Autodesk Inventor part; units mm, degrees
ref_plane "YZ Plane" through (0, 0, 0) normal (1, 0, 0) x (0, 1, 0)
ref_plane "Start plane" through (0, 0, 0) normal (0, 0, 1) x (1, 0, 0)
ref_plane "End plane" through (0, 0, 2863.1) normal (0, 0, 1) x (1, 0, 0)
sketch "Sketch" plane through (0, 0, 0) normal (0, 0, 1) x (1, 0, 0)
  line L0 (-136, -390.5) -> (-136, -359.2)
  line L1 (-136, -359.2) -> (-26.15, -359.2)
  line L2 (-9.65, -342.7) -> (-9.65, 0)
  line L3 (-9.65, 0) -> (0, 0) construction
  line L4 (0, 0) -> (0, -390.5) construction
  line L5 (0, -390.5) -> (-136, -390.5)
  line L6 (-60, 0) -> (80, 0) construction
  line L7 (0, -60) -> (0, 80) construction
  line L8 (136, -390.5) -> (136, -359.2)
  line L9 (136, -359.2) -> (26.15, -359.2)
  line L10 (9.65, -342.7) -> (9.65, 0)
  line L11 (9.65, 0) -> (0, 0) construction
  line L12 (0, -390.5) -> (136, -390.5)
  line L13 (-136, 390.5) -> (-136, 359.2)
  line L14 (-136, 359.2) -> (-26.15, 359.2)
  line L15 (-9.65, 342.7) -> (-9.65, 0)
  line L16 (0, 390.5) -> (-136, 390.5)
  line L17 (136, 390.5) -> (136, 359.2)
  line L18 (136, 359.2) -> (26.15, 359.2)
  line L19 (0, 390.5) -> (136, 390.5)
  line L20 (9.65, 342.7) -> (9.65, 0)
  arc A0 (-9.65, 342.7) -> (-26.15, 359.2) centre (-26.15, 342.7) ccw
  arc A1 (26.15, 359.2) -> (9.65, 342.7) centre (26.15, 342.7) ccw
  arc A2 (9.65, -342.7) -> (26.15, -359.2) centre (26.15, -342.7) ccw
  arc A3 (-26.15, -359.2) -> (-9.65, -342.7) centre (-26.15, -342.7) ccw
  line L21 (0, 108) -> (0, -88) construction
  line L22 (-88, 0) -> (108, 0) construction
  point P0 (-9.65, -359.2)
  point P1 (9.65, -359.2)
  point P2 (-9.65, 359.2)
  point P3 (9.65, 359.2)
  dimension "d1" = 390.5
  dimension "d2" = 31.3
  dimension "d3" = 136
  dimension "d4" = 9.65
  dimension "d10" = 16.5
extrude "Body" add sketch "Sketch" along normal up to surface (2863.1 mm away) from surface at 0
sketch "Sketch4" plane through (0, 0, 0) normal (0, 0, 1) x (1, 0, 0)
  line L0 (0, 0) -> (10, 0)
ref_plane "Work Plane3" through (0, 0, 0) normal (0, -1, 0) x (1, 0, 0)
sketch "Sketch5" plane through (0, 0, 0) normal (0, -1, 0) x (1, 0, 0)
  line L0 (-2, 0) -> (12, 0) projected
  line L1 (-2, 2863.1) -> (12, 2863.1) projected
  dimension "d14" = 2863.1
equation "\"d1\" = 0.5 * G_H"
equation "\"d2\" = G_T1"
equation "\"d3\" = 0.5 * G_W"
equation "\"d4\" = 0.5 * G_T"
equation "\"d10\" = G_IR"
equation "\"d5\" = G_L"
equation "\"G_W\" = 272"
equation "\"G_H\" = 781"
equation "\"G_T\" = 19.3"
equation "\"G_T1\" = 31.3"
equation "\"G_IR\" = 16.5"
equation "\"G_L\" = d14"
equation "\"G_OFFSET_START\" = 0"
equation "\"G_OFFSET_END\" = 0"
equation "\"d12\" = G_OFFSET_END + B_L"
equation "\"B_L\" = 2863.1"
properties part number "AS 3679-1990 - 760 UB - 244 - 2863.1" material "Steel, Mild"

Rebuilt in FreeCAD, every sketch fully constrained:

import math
import FreeCAD as App
import Part
import Sketcher
from FreeCAD import Vector
Q = App.Units.Quantity

doc = App.newDocument("Part")
params = doc.addObject("Spreadsheet::Sheet", "Params")
for row, (alias, value) in enumerate([
    ("sketch1_radius", "16.5 mm"),
    ("sketch1_height", "31.3 mm"),
    ("pad1_length", "2863.1 mm"),
], start=1):
    params.set(f"A{row}", alias)
    params.set(f"B{row}", "=" + value)
    params.setAlias(f"B{row}", alias)

body = doc.addObject("PartDesign::Body", "Body")

sketch1 = doc.addObject("Sketcher::SketchObject", "Sketch")
body.addObject(sketch1)
sketch1.AttachmentSupport = (doc.XY_Plane, [""])
sketch1.MapMode = "FlatFace"
sketch1.addGeometry(Part.LineSegment(Vector(-136, -359, 0), Vector(-136, -390, 0)), False)
sketch1.addGeometry(Part.LineSegment(Vector(-136, -390, 0), Vector(136, -390, 0)), False)
sketch1.addGeometry(Part.LineSegment(Vector(136, -390, 0), Vector(136, -359, 0)), False)
sketch1.addGeometry(Part.LineSegment(Vector(136, -359, 0), Vector(26, -359, 0)), False)
sketch1.addGeometry(Part.ArcOfCircle(Part.Circle(Vector(26, -343, 0), Vector(0, 0, 1), 16), math.radians(180), math.radians(270)), False)
sketch1.addGeometry(Part.LineSegment(Vector(10, -343, 0), Vector(10, 343, 0)), False)
sketch1.addGeometry(Part.ArcOfCircle(Part.Circle(Vector(26, 343, 0), Vector(0, 0, 1), 16), math.radians(90), math.radians(180)), False)
sketch1.addGeometry(Part.LineSegment(Vector(26, 359, 0), Vector(136, 359, 0)), False)
sketch1.addGeometry(Part.LineSegment(Vector(136, 359, 0), Vector(136, 390, 0)), False)
sketch1.addGeometry(Part.LineSegment(Vector(136, 390, 0), Vector(-136, 390, 0)), False)
sketch1.addGeometry(Part.LineSegment(Vector(-136, 390, 0), Vector(-136, 359, 0)), False)
sketch1.addGeometry(Part.LineSegment(Vector(-136, 359, 0), Vector(-26, 359, 0)), False)
sketch1.addGeometry(Part.ArcOfCircle(Part.Circle(Vector(-26, 343, 0), Vector(0, 0, 1), 16), math.radians(0), math.radians(90)), False)
sketch1.addGeometry(Part.LineSegment(Vector(-10, 343, 0), Vector(-10, -343, 0)), False)
sketch1.addGeometry(Part.ArcOfCircle(Part.Circle(Vector(-26, -343, 0), Vector(0, 0, 1), 16), math.radians(-90), math.radians(0)), False)
sketch1.addGeometry(Part.LineSegment(Vector(-26, -359, 0), Vector(-136, -359, 0)), False)
sketch1.addConstraint(Sketcher.Constraint("Coincident", 0, 2, 1, 1))
sketch1.addConstraint(Sketcher.Constraint("Coincident", 1, 2, 2, 1))
sketch1.addConstraint(Sketcher.Constraint("Coincident", 2, 2, 3, 1))
sketch1.addConstraint(Sketcher.Constraint("Tangent", 3, 2, 4, 2))
sketch1.addConstraint(Sketcher.Constraint("Tangent", 4, 1, 5, 1))
sketch1.addConstraint(Sketcher.Constraint("Tangent", 5, 2, 6, 2))
sketch1.addConstraint(Sketcher.Constraint("Tangent", 6, 1, 7, 1))
sketch1.addConstraint(Sketcher.Constraint("Coincident", 7, 2, 8, 1))
sketch1.addConstraint(Sketcher.Constraint("Coincident", 8, 2, 9, 1))
sketch1.addConstraint(Sketcher.Constraint("Coincident", 9, 2, 10, 1))
sketch1.addConstraint(Sketcher.Constraint("Coincident", 10, 2, 11, 1))
sketch1.addConstraint(Sketcher.Constraint("Tangent", 11, 2, 12, 2))
sketch1.addConstraint(Sketcher.Constraint("Tangent", 12, 1, 13, 1))
sketch1.addConstraint(Sketcher.Constraint("Tangent", 13, 2, 14, 2))
sketch1.addConstraint(Sketcher.Constraint("Tangent", 14, 1, 15, 1))
sketch1.addConstraint(Sketcher.Constraint("Coincident", 15, 2, 0, 1))
sketch1.addConstraint(Sketcher.Constraint("Vertical", 0))
sketch1.addConstraint(Sketcher.Constraint("Horizontal", 1))
sketch1.addConstraint(Sketcher.Constraint("Vertical", 2))
sketch1.addConstraint(Sketcher.Constraint("Horizontal", 3))
sketch1.addConstraint(Sketcher.Constraint("Vertical", 5))
sketch1.addConstraint(Sketcher.Constraint("Horizontal", 7))
sketch1.addConstraint(Sketcher.Constraint("Vertical", 8))
sketch1.addConstraint(Sketcher.Constraint("Horizontal", 9))
sketch1.addConstraint(Sketcher.Constraint("Vertical", 10))
sketch1.addConstraint(Sketcher.Constraint("Horizontal", 11))
sketch1.addConstraint(Sketcher.Constraint("Vertical", 13))
sketch1.addConstraint(Sketcher.Constraint("Horizontal", 15))
sketch1.addConstraint(Sketcher.Constraint("Equal", 4, 6))
sketch1.addConstraint(Sketcher.Constraint("Equal", 6, 12))
sketch1.addConstraint(Sketcher.Constraint("Equal", 12, 14))
sketch1.addConstraint(Sketcher.Constraint("Symmetric", 4, 3, 12, 3, -1, 1))
sketch1.addConstraint(Sketcher.Constraint("Symmetric", 0, 2, 8, 2, -1, 1))
sketch1.addConstraint(Sketcher.Constraint("Symmetric", 7, 2, 10, 2, -2))
sketch1.addConstraint(Sketcher.Constraint("Symmetric", 2, 2, 15, 2, -2))
sketch1.addConstraint(Sketcher.Constraint("Radius", 4, Q("16.5 mm")))
sketch1.addConstraint(Sketcher.Constraint("DistanceY", 0, 2, 0, 1, Q("31.3 mm")))
sketch1.addConstraint(Sketcher.Constraint("DistanceX", 0, 2, -1, 1, Q("136 mm")))
sketch1.addConstraint(Sketcher.Constraint("DistanceY", 0, 2, -1, 1, Q("390.5 mm")))
sketch1.addConstraint(Sketcher.Constraint("DistanceX", -1, 1, 4, 1, Q("9.65 mm")))
sketch1.setExpression("Constraints[35]", "Params.sketch1_radius")
sketch1.setExpression("Constraints[36]", "Params.sketch1_height")
pad1 = doc.addObject("PartDesign::Pad", "Pad")
body.addObject(pad1)
pad1.Profile = sketch1
pad1.setExpression("Length", "Params.pad1_length")

doc.recompute()
